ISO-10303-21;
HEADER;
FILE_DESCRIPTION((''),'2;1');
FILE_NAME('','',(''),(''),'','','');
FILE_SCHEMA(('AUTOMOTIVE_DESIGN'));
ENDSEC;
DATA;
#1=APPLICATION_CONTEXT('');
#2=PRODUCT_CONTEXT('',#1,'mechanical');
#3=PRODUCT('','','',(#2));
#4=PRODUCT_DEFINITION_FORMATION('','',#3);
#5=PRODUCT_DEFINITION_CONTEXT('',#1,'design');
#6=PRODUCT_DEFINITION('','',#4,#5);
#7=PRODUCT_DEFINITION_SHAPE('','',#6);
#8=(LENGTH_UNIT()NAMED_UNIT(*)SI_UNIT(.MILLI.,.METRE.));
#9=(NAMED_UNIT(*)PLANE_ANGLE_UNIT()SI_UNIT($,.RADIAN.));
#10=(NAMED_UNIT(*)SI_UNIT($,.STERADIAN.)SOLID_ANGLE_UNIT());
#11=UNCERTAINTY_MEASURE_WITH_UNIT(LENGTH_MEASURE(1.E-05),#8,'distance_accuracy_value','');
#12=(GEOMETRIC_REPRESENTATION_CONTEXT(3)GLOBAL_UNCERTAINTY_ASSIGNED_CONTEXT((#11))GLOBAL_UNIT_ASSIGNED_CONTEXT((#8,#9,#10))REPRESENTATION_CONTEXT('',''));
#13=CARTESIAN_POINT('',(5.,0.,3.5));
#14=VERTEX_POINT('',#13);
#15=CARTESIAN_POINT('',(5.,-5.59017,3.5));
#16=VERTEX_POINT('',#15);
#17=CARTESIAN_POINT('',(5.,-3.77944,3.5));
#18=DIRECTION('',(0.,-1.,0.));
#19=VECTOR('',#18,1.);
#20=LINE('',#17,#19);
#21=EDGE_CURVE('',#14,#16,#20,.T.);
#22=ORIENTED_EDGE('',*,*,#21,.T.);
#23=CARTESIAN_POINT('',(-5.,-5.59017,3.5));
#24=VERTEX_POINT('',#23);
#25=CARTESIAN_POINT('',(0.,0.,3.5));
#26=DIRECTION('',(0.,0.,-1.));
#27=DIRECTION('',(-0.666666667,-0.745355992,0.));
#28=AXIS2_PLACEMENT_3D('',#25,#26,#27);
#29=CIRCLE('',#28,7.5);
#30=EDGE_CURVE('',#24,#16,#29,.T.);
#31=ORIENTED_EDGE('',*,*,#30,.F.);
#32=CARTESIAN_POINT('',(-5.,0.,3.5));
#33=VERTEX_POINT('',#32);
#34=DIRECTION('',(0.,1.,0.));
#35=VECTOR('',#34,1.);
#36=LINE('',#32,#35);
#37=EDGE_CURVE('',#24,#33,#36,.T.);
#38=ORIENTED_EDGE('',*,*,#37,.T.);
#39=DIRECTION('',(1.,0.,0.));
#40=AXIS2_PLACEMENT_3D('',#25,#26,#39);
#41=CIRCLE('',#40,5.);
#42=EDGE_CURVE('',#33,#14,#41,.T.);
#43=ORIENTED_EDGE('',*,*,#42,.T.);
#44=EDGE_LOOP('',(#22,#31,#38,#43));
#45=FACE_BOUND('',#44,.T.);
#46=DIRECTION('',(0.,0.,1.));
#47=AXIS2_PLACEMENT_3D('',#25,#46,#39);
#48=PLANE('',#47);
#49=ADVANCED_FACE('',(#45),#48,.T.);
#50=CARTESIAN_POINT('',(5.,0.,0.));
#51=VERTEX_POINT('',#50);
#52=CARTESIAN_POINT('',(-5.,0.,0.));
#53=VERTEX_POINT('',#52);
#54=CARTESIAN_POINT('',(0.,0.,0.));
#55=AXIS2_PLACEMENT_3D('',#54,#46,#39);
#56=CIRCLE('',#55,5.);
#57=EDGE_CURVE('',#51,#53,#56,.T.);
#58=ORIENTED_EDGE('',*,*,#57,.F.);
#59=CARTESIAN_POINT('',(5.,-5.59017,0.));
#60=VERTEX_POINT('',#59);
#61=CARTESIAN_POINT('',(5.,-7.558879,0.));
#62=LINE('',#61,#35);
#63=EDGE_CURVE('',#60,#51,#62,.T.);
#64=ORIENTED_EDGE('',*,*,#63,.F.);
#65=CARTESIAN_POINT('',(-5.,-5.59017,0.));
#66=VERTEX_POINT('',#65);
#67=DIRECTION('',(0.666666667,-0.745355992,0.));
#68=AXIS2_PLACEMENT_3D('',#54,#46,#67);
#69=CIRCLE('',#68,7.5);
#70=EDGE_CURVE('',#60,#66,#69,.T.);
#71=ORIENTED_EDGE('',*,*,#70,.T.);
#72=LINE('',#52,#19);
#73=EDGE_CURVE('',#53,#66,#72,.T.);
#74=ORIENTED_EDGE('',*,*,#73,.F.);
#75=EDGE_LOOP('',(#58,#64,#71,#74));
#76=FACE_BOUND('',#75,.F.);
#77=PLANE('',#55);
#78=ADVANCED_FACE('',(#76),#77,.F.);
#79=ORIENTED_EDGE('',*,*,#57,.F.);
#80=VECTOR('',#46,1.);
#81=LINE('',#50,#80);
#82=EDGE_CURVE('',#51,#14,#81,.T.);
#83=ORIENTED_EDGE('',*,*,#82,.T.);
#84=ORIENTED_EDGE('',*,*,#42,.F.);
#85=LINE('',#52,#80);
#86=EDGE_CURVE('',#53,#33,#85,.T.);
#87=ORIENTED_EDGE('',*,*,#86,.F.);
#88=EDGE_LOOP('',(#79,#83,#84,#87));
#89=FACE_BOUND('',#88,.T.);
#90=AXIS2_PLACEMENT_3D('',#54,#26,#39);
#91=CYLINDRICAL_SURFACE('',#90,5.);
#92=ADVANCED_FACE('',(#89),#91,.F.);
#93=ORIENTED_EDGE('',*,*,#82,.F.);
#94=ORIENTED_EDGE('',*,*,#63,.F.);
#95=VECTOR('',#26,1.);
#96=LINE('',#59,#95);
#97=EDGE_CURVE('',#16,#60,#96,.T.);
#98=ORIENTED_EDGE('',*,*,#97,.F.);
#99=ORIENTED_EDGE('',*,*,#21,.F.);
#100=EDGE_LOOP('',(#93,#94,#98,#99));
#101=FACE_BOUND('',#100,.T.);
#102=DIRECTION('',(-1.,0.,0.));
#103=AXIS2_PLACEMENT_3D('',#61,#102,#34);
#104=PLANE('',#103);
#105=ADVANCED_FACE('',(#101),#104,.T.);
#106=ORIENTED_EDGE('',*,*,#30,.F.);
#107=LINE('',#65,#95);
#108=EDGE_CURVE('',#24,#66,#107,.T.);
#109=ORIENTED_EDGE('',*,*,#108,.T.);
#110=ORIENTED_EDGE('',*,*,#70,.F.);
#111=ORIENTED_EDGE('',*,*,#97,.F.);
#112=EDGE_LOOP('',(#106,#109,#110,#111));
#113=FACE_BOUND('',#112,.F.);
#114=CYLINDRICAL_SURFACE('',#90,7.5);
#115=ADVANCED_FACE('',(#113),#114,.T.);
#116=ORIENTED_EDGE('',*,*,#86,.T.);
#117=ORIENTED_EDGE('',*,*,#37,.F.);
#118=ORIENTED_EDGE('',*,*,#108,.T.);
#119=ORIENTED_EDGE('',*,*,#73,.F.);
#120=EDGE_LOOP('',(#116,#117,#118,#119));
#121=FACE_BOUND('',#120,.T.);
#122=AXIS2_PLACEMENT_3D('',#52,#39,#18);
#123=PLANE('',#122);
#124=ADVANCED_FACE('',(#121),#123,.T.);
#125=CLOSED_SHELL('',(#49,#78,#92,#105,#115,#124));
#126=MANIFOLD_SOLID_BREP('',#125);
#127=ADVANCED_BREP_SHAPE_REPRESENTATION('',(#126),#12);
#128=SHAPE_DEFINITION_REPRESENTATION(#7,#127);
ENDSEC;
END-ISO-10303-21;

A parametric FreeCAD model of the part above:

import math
import FreeCAD as App
import Part
import Sketcher

V = App.Vector
Q = App.Units.Quantity

doc = App.newDocument("Part")
body = doc.addObject("PartDesign::Body", "Body")

sketch1 = body.newObject("Sketcher::SketchObject", "Sketch")
sketch1.AttachmentSupport = (doc.getObject("XY_Plane"), [""])
sketch1.MapMode = "FlatFace"
sketch1.addGeometry(Part.Circle(V(0, 0, 0), V(0, 0, 1), 8), False)
sketch1.addConstraint([
    Sketcher.Constraint("Coincident", 0, 3, -1, 1),
    Sketcher.Constraint("Diameter", 0, Q("15 mm")),
])
pad1 = body.newObject("PartDesign::Pad", "Pad")
pad1.Profile = sketch1
pad1.Length = 3.5

sketch2 = body.newObject("Sketcher::SketchObject", "Sketch001")
sketch2.AttachmentSupport = (doc.getObject("XY_Plane"), [""])
sketch2.MapMode = "FlatFace"
sketch2.addGeometry([
    Part.LineSegment(V(-5, -8, 0), V(5, -8, 0)),
    Part.LineSegment(V(5, -8, 0), V(5, 0, 0)),
    Part.ArcOfCircle(Part.Circle(V(0, 0, 0), V(0, 0, 1), 5), math.radians(0), math.radians(180)),
    Part.LineSegment(V(-5, 0, 0), V(-5, -8, 0)),
], False)
sketch2.addConstraint([
    Sketcher.Constraint("Coincident", 0, 2, 1, 1),
    Sketcher.Constraint("Tangent", 1, 2, 2, 1),
    Sketcher.Constraint("Tangent", 2, 2, 3, 1),
    Sketcher.Constraint("Coincident", 3, 2, 0, 1),
    Sketcher.Constraint("Horizontal", 0),
    Sketcher.Constraint("Vertical", 1),
    Sketcher.Constraint("Vertical", 3),
    Sketcher.Constraint("Coincident", 2, 3, -1, 1),
    Sketcher.Constraint("Radius", 2, Q("5 mm")),
    Sketcher.Constraint("DistanceY", 1, 1, 1, 2, Q("7.558879 mm")),
])
pocket1 = body.newObject("PartDesign::Pocket", "Pocket")
pocket1.Profile = sketch2
pocket1.Length = 25
pocket1.Reversed = True

doc.recompute()
